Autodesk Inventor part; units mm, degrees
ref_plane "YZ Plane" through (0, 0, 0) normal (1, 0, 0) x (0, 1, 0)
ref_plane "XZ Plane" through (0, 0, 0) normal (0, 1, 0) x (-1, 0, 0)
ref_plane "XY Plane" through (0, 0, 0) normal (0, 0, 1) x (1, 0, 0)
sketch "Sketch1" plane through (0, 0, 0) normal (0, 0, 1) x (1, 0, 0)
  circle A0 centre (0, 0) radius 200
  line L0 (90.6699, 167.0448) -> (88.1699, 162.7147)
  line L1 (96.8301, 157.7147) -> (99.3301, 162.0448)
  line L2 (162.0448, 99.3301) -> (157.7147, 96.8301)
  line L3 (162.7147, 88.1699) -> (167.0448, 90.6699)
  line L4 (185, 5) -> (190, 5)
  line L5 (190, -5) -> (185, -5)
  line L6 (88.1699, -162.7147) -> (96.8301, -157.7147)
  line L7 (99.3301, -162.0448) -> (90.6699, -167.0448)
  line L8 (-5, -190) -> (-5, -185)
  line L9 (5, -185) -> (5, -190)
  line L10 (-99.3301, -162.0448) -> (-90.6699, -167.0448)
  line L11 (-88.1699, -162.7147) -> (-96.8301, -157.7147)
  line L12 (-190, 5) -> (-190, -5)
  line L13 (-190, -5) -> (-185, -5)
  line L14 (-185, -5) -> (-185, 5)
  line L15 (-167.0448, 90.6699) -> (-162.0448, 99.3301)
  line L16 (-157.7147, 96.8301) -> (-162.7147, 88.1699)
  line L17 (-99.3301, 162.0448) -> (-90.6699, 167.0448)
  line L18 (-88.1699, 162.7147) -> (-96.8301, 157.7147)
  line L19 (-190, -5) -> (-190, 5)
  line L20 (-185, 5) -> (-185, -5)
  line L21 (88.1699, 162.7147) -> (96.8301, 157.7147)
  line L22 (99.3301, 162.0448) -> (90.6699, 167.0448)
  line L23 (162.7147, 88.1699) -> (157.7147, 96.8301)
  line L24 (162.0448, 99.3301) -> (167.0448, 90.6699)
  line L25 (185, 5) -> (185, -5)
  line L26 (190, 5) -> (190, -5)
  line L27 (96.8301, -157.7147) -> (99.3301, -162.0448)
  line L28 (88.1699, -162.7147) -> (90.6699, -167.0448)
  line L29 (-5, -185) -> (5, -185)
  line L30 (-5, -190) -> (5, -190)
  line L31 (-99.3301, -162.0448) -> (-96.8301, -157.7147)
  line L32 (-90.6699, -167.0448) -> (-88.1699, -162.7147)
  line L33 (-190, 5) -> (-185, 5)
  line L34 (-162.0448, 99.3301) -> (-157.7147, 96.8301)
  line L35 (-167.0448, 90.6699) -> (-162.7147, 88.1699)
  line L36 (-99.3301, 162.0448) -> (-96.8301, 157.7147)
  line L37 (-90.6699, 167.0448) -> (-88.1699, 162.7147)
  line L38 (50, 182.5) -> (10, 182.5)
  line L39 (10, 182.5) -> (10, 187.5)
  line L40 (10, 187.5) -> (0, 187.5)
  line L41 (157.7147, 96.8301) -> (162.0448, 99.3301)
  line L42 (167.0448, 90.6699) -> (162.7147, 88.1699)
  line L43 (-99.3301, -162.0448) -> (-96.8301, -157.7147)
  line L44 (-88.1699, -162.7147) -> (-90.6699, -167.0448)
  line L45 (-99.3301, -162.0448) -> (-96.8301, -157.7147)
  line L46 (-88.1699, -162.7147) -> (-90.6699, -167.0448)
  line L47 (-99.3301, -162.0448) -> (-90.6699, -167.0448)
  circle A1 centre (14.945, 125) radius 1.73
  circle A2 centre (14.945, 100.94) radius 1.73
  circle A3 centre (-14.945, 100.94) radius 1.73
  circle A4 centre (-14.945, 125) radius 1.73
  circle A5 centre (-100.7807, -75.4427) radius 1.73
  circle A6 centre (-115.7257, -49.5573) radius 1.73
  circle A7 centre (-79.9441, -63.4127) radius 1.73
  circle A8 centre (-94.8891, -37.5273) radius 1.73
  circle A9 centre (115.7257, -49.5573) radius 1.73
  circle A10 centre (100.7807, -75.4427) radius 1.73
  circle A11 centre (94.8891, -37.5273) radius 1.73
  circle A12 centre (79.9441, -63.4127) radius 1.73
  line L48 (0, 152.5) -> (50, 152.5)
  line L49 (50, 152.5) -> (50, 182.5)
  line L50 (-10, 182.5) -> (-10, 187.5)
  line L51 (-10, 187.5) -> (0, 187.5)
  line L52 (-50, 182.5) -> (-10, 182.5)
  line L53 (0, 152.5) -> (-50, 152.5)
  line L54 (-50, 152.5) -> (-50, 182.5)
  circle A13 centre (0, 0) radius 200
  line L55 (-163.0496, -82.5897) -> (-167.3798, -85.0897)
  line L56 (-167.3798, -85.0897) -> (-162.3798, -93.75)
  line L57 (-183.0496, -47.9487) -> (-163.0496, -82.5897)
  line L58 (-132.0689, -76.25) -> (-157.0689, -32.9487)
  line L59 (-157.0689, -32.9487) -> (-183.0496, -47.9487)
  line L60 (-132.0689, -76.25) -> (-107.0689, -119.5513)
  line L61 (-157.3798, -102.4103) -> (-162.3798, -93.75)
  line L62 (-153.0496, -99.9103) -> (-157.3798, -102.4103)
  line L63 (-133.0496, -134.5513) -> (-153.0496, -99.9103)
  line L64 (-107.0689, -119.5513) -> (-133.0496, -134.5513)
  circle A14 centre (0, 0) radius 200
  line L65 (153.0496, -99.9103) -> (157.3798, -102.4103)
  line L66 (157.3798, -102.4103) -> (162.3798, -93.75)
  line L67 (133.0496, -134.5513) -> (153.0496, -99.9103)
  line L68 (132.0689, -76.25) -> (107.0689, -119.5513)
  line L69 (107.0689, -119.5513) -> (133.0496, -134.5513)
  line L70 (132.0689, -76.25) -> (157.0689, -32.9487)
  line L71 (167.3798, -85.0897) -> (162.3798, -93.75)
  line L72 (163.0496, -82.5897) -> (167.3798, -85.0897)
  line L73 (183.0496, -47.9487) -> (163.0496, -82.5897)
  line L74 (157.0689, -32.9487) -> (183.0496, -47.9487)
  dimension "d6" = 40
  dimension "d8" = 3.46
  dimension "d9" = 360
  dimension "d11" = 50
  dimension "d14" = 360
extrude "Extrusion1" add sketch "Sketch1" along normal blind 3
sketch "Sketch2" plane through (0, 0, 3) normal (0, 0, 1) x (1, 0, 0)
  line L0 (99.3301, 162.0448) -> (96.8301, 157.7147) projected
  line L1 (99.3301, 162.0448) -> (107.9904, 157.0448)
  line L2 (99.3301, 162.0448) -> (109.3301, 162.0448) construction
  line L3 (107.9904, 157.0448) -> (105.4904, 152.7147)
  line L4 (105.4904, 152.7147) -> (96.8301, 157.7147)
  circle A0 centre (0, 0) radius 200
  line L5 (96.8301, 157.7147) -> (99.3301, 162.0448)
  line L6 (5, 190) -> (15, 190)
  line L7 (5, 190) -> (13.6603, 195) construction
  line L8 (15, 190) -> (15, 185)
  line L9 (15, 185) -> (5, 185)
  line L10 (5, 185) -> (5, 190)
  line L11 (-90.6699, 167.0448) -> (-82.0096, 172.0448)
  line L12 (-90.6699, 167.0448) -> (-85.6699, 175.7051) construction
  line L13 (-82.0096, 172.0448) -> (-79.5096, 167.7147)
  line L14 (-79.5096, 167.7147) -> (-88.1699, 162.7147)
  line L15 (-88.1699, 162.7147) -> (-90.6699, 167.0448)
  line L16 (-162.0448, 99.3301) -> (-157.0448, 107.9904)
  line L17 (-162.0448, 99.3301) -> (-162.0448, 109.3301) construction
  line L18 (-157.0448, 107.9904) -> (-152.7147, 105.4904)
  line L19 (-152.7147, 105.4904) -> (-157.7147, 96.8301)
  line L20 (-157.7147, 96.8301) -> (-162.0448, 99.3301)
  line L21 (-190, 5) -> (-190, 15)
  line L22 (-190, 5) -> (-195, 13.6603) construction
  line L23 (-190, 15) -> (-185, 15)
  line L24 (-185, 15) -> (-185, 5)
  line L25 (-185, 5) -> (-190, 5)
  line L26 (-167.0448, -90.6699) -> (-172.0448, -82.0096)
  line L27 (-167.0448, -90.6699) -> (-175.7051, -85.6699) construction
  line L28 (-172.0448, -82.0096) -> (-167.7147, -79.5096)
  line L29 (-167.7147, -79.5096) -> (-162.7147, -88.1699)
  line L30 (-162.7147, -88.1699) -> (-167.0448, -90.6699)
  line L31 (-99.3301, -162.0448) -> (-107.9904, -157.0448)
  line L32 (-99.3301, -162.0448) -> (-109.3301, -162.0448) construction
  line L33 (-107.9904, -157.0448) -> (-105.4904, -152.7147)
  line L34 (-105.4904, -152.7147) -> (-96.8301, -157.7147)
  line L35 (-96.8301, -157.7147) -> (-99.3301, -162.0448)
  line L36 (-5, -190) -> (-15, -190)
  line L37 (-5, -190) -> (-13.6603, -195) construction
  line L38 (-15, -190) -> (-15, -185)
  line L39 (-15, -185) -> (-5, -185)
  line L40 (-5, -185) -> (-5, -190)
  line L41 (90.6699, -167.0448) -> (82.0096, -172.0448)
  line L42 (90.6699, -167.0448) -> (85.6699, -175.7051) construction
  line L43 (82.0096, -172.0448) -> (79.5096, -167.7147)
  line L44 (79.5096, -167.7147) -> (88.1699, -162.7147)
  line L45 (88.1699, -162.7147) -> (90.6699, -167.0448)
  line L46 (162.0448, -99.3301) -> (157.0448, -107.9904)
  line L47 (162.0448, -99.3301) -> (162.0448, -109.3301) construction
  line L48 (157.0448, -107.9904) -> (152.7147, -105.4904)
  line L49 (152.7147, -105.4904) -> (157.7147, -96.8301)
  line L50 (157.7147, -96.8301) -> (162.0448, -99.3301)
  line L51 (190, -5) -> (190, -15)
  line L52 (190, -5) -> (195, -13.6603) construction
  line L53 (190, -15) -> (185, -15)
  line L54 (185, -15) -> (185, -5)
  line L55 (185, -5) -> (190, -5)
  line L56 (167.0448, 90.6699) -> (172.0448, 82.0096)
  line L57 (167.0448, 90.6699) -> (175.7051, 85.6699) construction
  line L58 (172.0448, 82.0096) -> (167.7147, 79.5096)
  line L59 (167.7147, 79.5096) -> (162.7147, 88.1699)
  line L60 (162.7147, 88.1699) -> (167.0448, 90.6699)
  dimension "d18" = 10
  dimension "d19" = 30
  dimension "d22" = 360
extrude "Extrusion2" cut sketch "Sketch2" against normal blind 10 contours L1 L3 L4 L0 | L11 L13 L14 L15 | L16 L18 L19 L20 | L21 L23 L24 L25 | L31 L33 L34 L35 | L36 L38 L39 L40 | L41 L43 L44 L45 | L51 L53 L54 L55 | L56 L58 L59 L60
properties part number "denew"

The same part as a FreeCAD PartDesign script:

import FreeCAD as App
import Part
import Sketcher

V = App.Vector
Q = App.Units.Quantity


def add_polygon(sketch, points):
    """Adds a closed chain of lines whose ends are joined by coincident constraints."""
    first, n = sketch.GeometryCount, len(points)
    for a, b in zip(points, points[1:] + points[:1]):
        sketch.addGeometry(Part.LineSegment(App.Vector(*a, 0), App.Vector(*b, 0)), False)
    for i in range(n):
        sketch.addConstraint(Sketcher.Constraint("Coincident", first + i, 2, first + (i + 1) % n, 1))

doc = App.newDocument("Part")
body = doc.addObject("PartDesign::Body", "Body")

sketch1 = doc.addObject("Sketcher::SketchObject", "Sketch")
body.addObject(sketch1)
sketch1.AttachmentSupport = (doc.XY_Plane, [""])
sketch1.MapMode = "FlatFace"
sketch1.addGeometry(Part.Circle(V(0, 0, 0), V(0, 0, 1), 200), False)
add_polygon(sketch1, [(-90.7, -167), (-99.3, -162), (-96.8, -157.7), (-88.2, -162.7)])
add_polygon(sketch1, [(-167.4, -85.1), (-163, -82.6), (-183, -47.9), (-157.1, -32.9), (-107.1, -119.6), (-133, -134.6), (-153, -99.9), (-157.4, -102.4)])
sketch1.addGeometry(Part.Circle(V(-100.8, -75.4, 0), V(0, 0, 1), 1.7), False)
sketch1.addGeometry(Part.Circle(V(-115.7, -49.6, 0), V(0, 0, 1), 1.7), False)
sketch1.addGeometry(Part.Circle(V(-79.9, -63.4, 0), V(0, 0, 1), 1.7), False)
sketch1.addGeometry(Part.Circle(V(-94.9, -37.5, 0), V(0, 0, 1), 1.7), False)
add_polygon(sketch1, [(5, -190), (-5, -190), (-5, -185), (5, -185)])
add_polygon(sketch1, [(90.7, -167), (88.2, -162.7), (96.8, -157.7), (99.3, -162)])
sketch1.addGeometry(Part.Circle(V(79.9, -63.4, 0), V(0, 0, 1), 1.7), False)
sketch1.addGeometry(Part.Circle(V(94.9, -37.5, 0), V(0, 0, 1), 1.7), False)
sketch1.addGeometry(Part.Circle(V(100.8, -75.4, 0), V(0, 0, 1), 1.7), False)
add_polygon(sketch1, [(157.4, -102.4), (153, -99.9), (133, -134.6), (107.1, -119.6), (157.1, -32.9), (183, -47.9), (163, -82.6), (167.4, -85.1)])
sketch1.addGeometry(Part.Circle(V(115.7, -49.6, 0), V(0, 0, 1), 1.7), False)
add_polygon(sketch1, [(-190, -5), (-190, 5), (-185, 5), (-185, -5)])
add_polygon(sketch1, [(-162.7, 88.2), (-167, 90.7), (-162, 99.3), (-157.7, 96.8)])
sketch1.addGeometry(Part.Circle(V(-14.9, 100.9, 0), V(0, 0, 1), 1.7), False)
sketch1.addGeometry(Part.Circle(V(-14.9, 125, 0), V(0, 0, 1), 1.7), False)
add_polygon(sketch1, [(-96.8, 157.7), (-99.3, 162), (-90.7, 167), (-88.2, 162.7)])
add_polygon(sketch1, [(185, -5), (185, 5), (190, 5), (190, -5)])
add_polygon(sketch1, [(157.7, 96.8), (162, 99.3), (167, 90.7), (162.7, 88.2)])
sketch1.addGeometry(Part.Circle(V(14.9, 100.9, 0), V(0, 0, 1), 1.7), False)
sketch1.addGeometry(Part.Circle(V(14.9, 125, 0), V(0, 0, 1), 1.7), False)
add_polygon(sketch1, [(10, 182.5), (50, 182.5), (50, 152.5), (-50, 152.5), (-50, 182.5), (-10, 182.5), (-10, 187.5), (10, 187.5)])
add_polygon(sketch1, [(88.2, 162.7), (90.7, 167), (99.3, 162), (96.8, 157.7)])
sketch1.addConstraint(Sketcher.Constraint("Horizontal", 17))
sketch1.addConstraint(Sketcher.Constraint("Vertical", 18))
sketch1.addConstraint(Sketcher.Constraint("Horizontal", 19))
sketch1.addConstraint(Sketcher.Constraint("Vertical", 20))
sketch1.addConstraint(Sketcher.Constraint("Vertical", 37))
sketch1.addConstraint(Sketcher.Constraint("Horizontal", 38))
sketch1.addConstraint(Sketcher.Constraint("Vertical", 39))
sketch1.addConstraint(Sketcher.Constraint("Horizontal", 40))
sketch1.addConstraint(Sketcher.Constraint("Vertical", 51))
sketch1.addConstraint(Sketcher.Constraint("Horizontal", 52))
sketch1.addConstraint(Sketcher.Constraint("Vertical", 53))
sketch1.addConstraint(Sketcher.Constraint("Horizontal", 54))
sketch1.addConstraint(Sketcher.Constraint("Horizontal", 61))
sketch1.addConstraint(Sketcher.Constraint("Vertical", 62))
sketch1.addConstraint(Sketcher.Constraint("Horizontal", 63))
sketch1.addConstraint(Sketcher.Constraint("Vertical", 64))
sketch1.addConstraint(Sketcher.Constraint("Horizontal", 65))
sketch1.addConstraint(Sketcher.Constraint("Vertical", 66))
sketch1.addConstraint(Sketcher.Constraint("Horizontal", 67))
sketch1.addConstraint(Sketcher.Constraint("Vertical", 68))
sketch1.addConstraint(Sketcher.Constraint("Coincident", 0, 3, -1, 1))
sketch1.addConstraint(Sketcher.Constraint("Equal", 13, 14))
sketch1.addConstraint(Sketcher.Constraint("Equal", 14, 15))
sketch1.addConstraint(Sketcher.Constraint("Equal", 15, 16))
sketch1.addConstraint(Sketcher.Constraint("Equal", 16, 25))
sketch1.addConstraint(Sketcher.Constraint("Equal", 25, 26))
sketch1.addConstraint(Sketcher.Constraint("Equal", 26, 27))
sketch1.addConstraint(Sketcher.Constraint("Equal", 27, 36))
sketch1.addConstraint(Sketcher.Constraint("Equal", 36, 45))
sketch1.addConstraint(Sketcher.Constraint("Equal", 45, 46))
sketch1.addConstraint(Sketcher.Constraint("Equal", 46, 59))
sketch1.addConstraint(Sketcher.Constraint("Equal", 59, 60))
sketch1.addConstraint(Sketcher.Constraint("Symmetric", 23, 2, 47, 2, -1, 1))
sketch1.addConstraint(Sketcher.Constraint("Symmetric", 24, 2, 48, 2, -1, 1))
sketch1.addConstraint(Sketcher.Constraint("Symmetric", 21, 2, 49, 2, -1, 1))
sketch1.addConstraint(Sketcher.Constraint("Symmetric", 22, 2, 50, 2, -1, 1))
sketch1.addConstraint(Sketcher.Constraint("Symmetric", 39, 2, 51, 2, -1, 1))
sketch1.addConstraint(Sketcher.Constraint("Symmetric", 37, 2, 53, 2, -1, 1))
sketch1.addConstraint(Sketcher.Constraint("Symmetric", 4, 2, 69, 2, -1, 1))
sketch1.addConstraint(Sketcher.Constraint("Symmetric", 1, 2, 70, 2, -1, 1))
sketch1.addConstraint(Sketcher.Constraint("Symmetric", 2, 2, 71, 2, -1, 1))
sketch1.addConstraint(Sketcher.Constraint("Symmetric", 3, 2, 72, 2, -1, 1))
sketch1.addConstraint(Sketcher.Constraint("Symmetric", 15, 3, 25, 3, -2))
sketch1.addConstraint(Sketcher.Constraint("Symmetric", 16, 3, 26, 3, -2))
sketch1.addConstraint(Sketcher.Constraint("Symmetric", 13, 3, 27, 3, -2))
sketch1.addConstraint(Sketcher.Constraint("Symmetric", 14, 3, 36, 3, -2))
sketch1.addConstraint(Sketcher.Constraint("Symmetric", 45, 3, 59, 3, -2))
sketch1.addConstraint(Sketcher.Constraint("Symmetric", 46, 3, 60, 3, -2))
sketch1.addConstraint(Sketcher.Constraint("Symmetric", 3, 2, 21, 2, -2))
sketch1.addConstraint(Sketcher.Constraint("Symmetric", 2, 2, 22, 2, -2))
sketch1.addConstraint(Sketcher.Constraint("Symmetric", 1, 2, 23, 2, -2))
sketch1.addConstraint(Sketcher.Constraint("Symmetric", 4, 2, 24, 2, -2))
sketch1.addConstraint(Sketcher.Constraint("Symmetric", 10, 2, 28, 2, -2))
sketch1.addConstraint(Sketcher.Constraint("Symmetric", 9, 2, 29, 2, -2))
sketch1.addConstraint(Sketcher.Constraint("Symmetric", 8, 2, 30, 2, -2))
sketch1.addConstraint(Sketcher.Constraint("Symmetric", 7, 2, 31, 2, -2))
sketch1.addConstraint(Sketcher.Constraint("Symmetric", 6, 2, 32, 2, -2))
sketch1.addConstraint(Sketcher.Constraint("Symmetric", 5, 2, 33, 2, -2))
sketch1.addConstraint(Sketcher.Constraint("Symmetric", 12, 2, 34, 2, -2))
sketch1.addConstraint(Sketcher.Constraint("Symmetric", 11, 2, 35, 2, -2))
sketch1.addConstraint(Sketcher.Constraint("Symmetric", 42, 2, 55, 2, -2))
sketch1.addConstraint(Sketcher.Constraint("Symmetric", 41, 2, 56, 2, -2))
sketch1.addConstraint(Sketcher.Constraint("Symmetric", 44, 2, 57, 2, -2))
sketch1.addConstraint(Sketcher.Constraint("Symmetric", 43, 2, 58, 2, -2))
sketch1.addConstraint(Sketcher.Constraint("Symmetric", 61, 2, 64, 2, -2))
sketch1.addConstraint(Sketcher.Constraint("Perpendicular", 1, 2))
sketch1.addConstraint(Sketcher.Constraint("Perpendicular", 2, 3))
sketch1.addConstraint(Sketcher.Constraint("Perpendicular", 3, 4))
sketch1.addConstraint(Sketcher.Constraint("Perpendicular", 5, 6))
sketch1.addConstraint(Sketcher.Constraint("Perpendicular", 6, 7))
sketch1.addConstraint(Sketcher.Constraint("Perpendicular", 7, 8))
sketch1.addConstraint(Sketcher.Constraint("Perpendicular", 8, 9))
sketch1.addConstraint(Sketcher.Constraint("Perpendicular", 9, 10))
sketch1.addConstraint(Sketcher.Constraint("Perpendicular", 10, 11))
sketch1.addConstraint(Sketcher.Constraint("Perpendicular", 11, 12))
sketch1.addConstraint(Sketcher.Constraint("Parallel", 12, 21))
sketch1.addConstraint(Sketcher.Constraint("Perpendicular", 35, 41))
sketch1.addConstraint(Sketcher.Constraint("Perpendicular", 41, 42))
sketch1.addConstraint(Sketcher.Constraint("Perpendicular", 42, 43))
sketch1.addConstraint(Sketcher.Constraint("Perpendicular", 43, 44))
sketch1.addConstraint(Sketcher.Constraint("Horizontal", 38, 2, 51, 2))
sketch1.addConstraint(Sketcher.Constraint("Vertical", 45, 3, 46, 3))
sketch1.addConstraint(Sketcher.Constraint("Equal", 61, 65))
sketch1.addConstraint(Sketcher.Constraint("Equal", 54, 18))
sketch1.addConstraint(Sketcher.Constraint("Equal", 19, 37))
sketch1.addConstraint(Sketcher.Constraint("Equal", 20, 66))
sketch1.addConstraint(Sketcher.Constraint("Equal", 4, 5))
sketch1.addConstraint(Sketcher.Constraint("Equal", 7, 9))
sketch1.addConstraint(Sketcher.Constraint("Equal", 6, 10))
sketch1.addConstraint(Sketcher.Constraint("Equal", 34, 41))
sketch1.addConstraint(Sketcher.Constraint("Equal", 24, 42))
sketch1.addConstraint(Sketcher.Constraint("Diameter", 13, 3.46))
sketch1.addConstraint(Sketcher.Constraint("DistanceX", 61, 1, 61, 2, 40.0))
sketch1.addConstraint(Sketcher.Constraint("Distance", 6, 40.0))
sketch1.addConstraint(Sketcher.Constraint("Diameter", 0, 400.0))
sketch1.addConstraint(Sketcher.Constraint("DistanceX", -1, 1, 61, 2, 50.0))
sketch1.addConstraint(Sketcher.Constraint("DistanceX", 17, 2, 17, 1, 10.0))
sketch1.addConstraint(Sketcher.Constraint("DistanceX", 38, 1, 38, 2, 5.0))
sketch1.addConstraint(Sketcher.Constraint("DistanceY", 62, 2, 62, 1, 30.0))
sketch1.addConstraint(Sketcher.Constraint("Angle", 1, Q("149.9998 deg")))
sketch1.addConstraint(Sketcher.Constraint("Distance", 1, 10.0))
sketch1.addConstraint(Sketcher.Constraint("Distance", 2, 5.0))
sketch1.addConstraint(Sketcher.Constraint("Distance", 7, 30.0))
sketch1.addConstraint(Sketcher.Constraint("Distance", 8, 100.0))
sketch1.addConstraint(Sketcher.Constraint("DistanceY", -1, 1, 46, 3, 125.0))
sketch1.addConstraint(Sketcher.Constraint("DistanceX", 17, 2, -1, 1, 5.0))
sketch1.addConstraint(Sketcher.Constraint("DistanceY", 17, 2, -1, 1, 190.0))
sketch1.addConstraint(Sketcher.Constraint("DistanceX", 37, 2, -1, 1, 190.0))
sketch1.addConstraint(Sketcher.Constraint("DistanceY", -1, 1, 61, 2, 182.5))
sketch1.addConstraint(Sketcher.Constraint("DistanceY", -1, 1, 45, 3, 100.94))
sketch1.addConstraint(Sketcher.Constraint("DistanceX", 1, 2, -1, 1, 99.33))
sketch1.addConstraint(Sketcher.Constraint("DistanceY", -1, 1, 41, 2, 90.67))
sketch1.addConstraint(Sketcher.Constraint("DistanceX", 15, 3, -1, 1, 79.944))
sketch1.addConstraint(Sketcher.Constraint("DistanceX", 16, 3, -1, 1, 94.889))
sketch1.addConstraint(Sketcher.Constraint("DistanceX", 45, 3, -1, 1, 14.945))
sketch1.addConstraint(Sketcher.Constraint("DistanceX", 7, 2, -1, 1, 157.069))
sketch1.addConstraint(Sketcher.Constraint("DistanceX", 13, 3, -1, 1, 100.7807))
sketch1.addConstraint(Sketcher.Constraint("DistanceY", 13, 3, -1, 1, 75.4427))
sketch1.addConstraint(Sketcher.Constraint("DistanceX", 14, 3, -1, 1, 115.7257))
sketch1.addConstraint(Sketcher.Constraint("DistanceY", 14, 3, -1, 1, 49.5573))
sketch1.addConstraint(Sketcher.Constraint("DistanceY", 15, 3, -1, 1, 63.4127))
sketch1.addConstraint(Sketcher.Constraint("DistanceY", 16, 3, -1, 1, 37.5273))
sketch1.addConstraint(Sketcher.Constraint("DistanceY", 1, 2, -1, 1, 162.0448))
sketch1.addConstraint(Sketcher.Constraint("DistanceY", 5, 2, -1, 1, 82.5897))
sketch1.addConstraint(Sketcher.Constraint("DistanceX", 41, 2, -1, 1, 167.0448))
pad1 = doc.addObject("PartDesign::Pad", "Pad")
body.addObject(pad1)
pad1.Profile = sketch1
pad1.Length = 3

sketch2 = doc.addObject("Sketcher::SketchObject", "Sketch001")
body.addObject(sketch2)
sketch2.AttachmentSupport = (doc.XY_Plane, [""])
sketch2.MapMode = "FlatFace"
sketch2.AttachmentOffset = App.Placement(V(0, 0, 3), App.Rotation())
add_polygon(sketch2, [(108, 157), (99.3, 162), (96.8, 157.7), (105.5, 152.7)])
add_polygon(sketch2, [(-82, 172), (-90.7, 167), (-88.2, 162.7), (-79.5, 167.7)])
add_polygon(sketch2, [(-157, 108), (-162, 99.3), (-157.7, 96.8), (-152.7, 105.5)])
add_polygon(sketch2, [(-190, 15), (-190, 5), (-185, 5), (-185, 15)])
add_polygon(sketch2, [(-108, -157), (-99.3, -162), (-96.8, -157.7), (-105.5, -152.7)])
add_polygon(sketch2, [(-15, -190), (-5, -190), (-5, -185), (-15, -185)])
add_polygon(sketch2, [(82, -172), (90.7, -167), (88.2, -162.7), (79.5, -167.7)])
add_polygon(sketch2, [(190, -15), (190, -5), (185, -5), (185, -15)])
add_polygon(sketch2, [(172, 82), (167, 90.7), (162.7, 88.2), (167.7, 79.5)])
sketch2.addConstraint(Sketcher.Constraint("Vertical", 12))
sketch2.addConstraint(Sketcher.Constraint("Horizontal", 13))
sketch2.addConstraint(Sketcher.Constraint("Vertical", 14))
sketch2.addConstraint(Sketcher.Constraint("Horizontal", 15))
sketch2.addConstraint(Sketcher.Constraint("Horizontal", 20))
sketch2.addConstraint(Sketcher.Constraint("Vertical", 21))
sketch2.addConstraint(Sketcher.Constraint("Horizontal", 22))
sketch2.addConstraint(Sketcher.Constraint("Vertical", 23))
sketch2.addConstraint(Sketcher.Constraint("Vertical", 28))
sketch2.addConstraint(Sketcher.Constraint("Horizontal", 29))
sketch2.addConstraint(Sketcher.Constraint("Vertical", 30))
sketch2.addConstraint(Sketcher.Constraint("Horizontal", 31))
sketch2.addConstraint(Sketcher.Constraint("Symmetric", 0, 2, 16, 2, -1, 1))
sketch2.addConstraint(Sketcher.Constraint("Symmetric", 1, 2, 17, 2, -1, 1))
sketch2.addConstraint(Sketcher.Constraint("Symmetric", 2, 2, 18, 2, -1, 1))
sketch2.addConstraint(Sketcher.Constraint("Symmetric", 3, 2, 19, 2, -1, 1))
sketch2.addConstraint(Sketcher.Constraint("Symmetric", 4, 2, 24, 2, -1, 1))
sketch2.addConstraint(Sketcher.Constraint("Symmetric", 5, 2, 25, 2, -1, 1))
sketch2.addConstraint(Sketcher.Constraint("Symmetric", 6, 2, 26, 2, -1, 1))
sketch2.addConstraint(Sketcher.Constraint("Symmetric", 7, 2, 27, 2, -1, 1))
sketch2.addConstraint(Sketcher.Constraint("Symmetric", 12, 2, 28, 2, -1, 1))
sketch2.addConstraint(Sketcher.Constraint("Symmetric", 14, 2, 30, 2, -1, 1))
sketch2.addConstraint(Sketcher.Constraint("Perpendicular", 0, 1))
sketch2.addConstraint(Sketcher.Constraint("Perpendicular", 1, 2))
sketch2.addConstraint(Sketcher.Constraint("Perpendicular", 2, 3))
sketch2.addConstraint(Sketcher.Constraint("Perpendicular", 4, 5))
sketch2.addConstraint(Sketcher.Constraint("Perpendicular", 5, 6))
sketch2.addConstraint(Sketcher.Constraint("Perpendicular", 6, 7))
sketch2.addConstraint(Sketcher.Constraint("Parallel", 3, 8))
sketch2.addConstraint(Sketcher.Constraint("Perpendicular", 8, 9))
sketch2.addConstraint(Sketcher.Constraint("Perpendicular", 9, 10))
sketch2.addConstraint(Sketcher.Constraint("Perpendicular", 10, 11))
sketch2.addConstraint(Sketcher.Constraint("Parallel", 27, 32))
sketch2.addConstraint(Sketcher.Constraint("Perpendicular", 32, 33))
sketch2.addConstraint(Sketcher.Constraint("Perpendicular", 33, 34))
sketch2.addConstraint(Sketcher.Constraint("Perpendicular", 34, 35))
sketch2.addConstraint(Sketcher.Constraint("Equal", 22, 12))
sketch2.addConstraint(Sketcher.Constraint("Equal", 31, 21))
sketch2.addConstraint(Sketcher.Constraint("Equal", 2, 4))
sketch2.addConstraint(Sketcher.Constraint("Equal", 3, 5))
sketch2.addConstraint(Sketcher.Constraint("Equal", 6, 8))
sketch2.addConstraint(Sketcher.Constraint("Equal", 7, 9))
sketch2.addConstraint(Sketcher.Constraint("Equal", 26, 32))
sketch2.addConstraint(Sketcher.Constraint("Equal", 27, 33))
sketch2.addConstraint(Sketcher.Constraint("DistanceX", 20, 1, 20, 2, 10.0))
sketch2.addConstraint(Sketcher.Constraint("Angle", 2, Q("-29.9999 deg")))
sketch2.addConstraint(Sketcher.Constraint("Angle", 6, Q("29.9999 deg")))
sketch2.addConstraint(Sketcher.Constraint("Distance", 0, 10.0))
sketch2.addConstraint(Sketcher.Constraint("DistanceY", 3, 2, 4, 2, 10.0))
sketch2.addConstraint(Sketcher.Constraint("DistanceX", 13, 1, 13, 2, 5.0))
sketch2.addConstraint(Sketcher.Constraint("Distance", 1, 5.0))
sketch2.addConstraint(Sketcher.Constraint("DistanceX", 12, 2, -1, 1, 190.0))
sketch2.addConstraint(Sketcher.Constraint("DistanceY", -1, 1, 12, 2, 5.0))
sketch2.addConstraint(Sketcher.Constraint("DistanceX", 20, 2, -1, 1, 5.0))
sketch2.addConstraint(Sketcher.Constraint("DistanceY", 20, 2, -1, 1, 190.0))
sketch2.addConstraint(Sketcher.Constraint("DistanceX", 4, 2, 0, 2, 190.0))
sketch2.addConstraint(Sketcher.Constraint("DistanceX", -1, 1, 0, 2, 99.33))
sketch2.addConstraint(Sketcher.Constraint("DistanceY", -1, 1, 8, 2, 99.33))
sketch2.addConstraint(Sketcher.Constraint("DistanceY", -1, 1, 32, 2, 90.67))
sketch2.addConstraint(Sketcher.Constraint("DistanceX", 8, 2, 5, 2, 73.875))
sketch2.addConstraint(Sketcher.Constraint("DistanceY", 16, 2, 9, 2, 258.875))
sketch2.addConstraint(Sketcher.Constraint("DistanceX", -1, 1, 32, 2, 167.0448))
pocket1 = doc.addObject("PartDesign::Pocket", "Pocket")
body.addObject(pocket1)
pocket1.Profile = sketch2
pocket1.Length = 10

doc.recompute()
